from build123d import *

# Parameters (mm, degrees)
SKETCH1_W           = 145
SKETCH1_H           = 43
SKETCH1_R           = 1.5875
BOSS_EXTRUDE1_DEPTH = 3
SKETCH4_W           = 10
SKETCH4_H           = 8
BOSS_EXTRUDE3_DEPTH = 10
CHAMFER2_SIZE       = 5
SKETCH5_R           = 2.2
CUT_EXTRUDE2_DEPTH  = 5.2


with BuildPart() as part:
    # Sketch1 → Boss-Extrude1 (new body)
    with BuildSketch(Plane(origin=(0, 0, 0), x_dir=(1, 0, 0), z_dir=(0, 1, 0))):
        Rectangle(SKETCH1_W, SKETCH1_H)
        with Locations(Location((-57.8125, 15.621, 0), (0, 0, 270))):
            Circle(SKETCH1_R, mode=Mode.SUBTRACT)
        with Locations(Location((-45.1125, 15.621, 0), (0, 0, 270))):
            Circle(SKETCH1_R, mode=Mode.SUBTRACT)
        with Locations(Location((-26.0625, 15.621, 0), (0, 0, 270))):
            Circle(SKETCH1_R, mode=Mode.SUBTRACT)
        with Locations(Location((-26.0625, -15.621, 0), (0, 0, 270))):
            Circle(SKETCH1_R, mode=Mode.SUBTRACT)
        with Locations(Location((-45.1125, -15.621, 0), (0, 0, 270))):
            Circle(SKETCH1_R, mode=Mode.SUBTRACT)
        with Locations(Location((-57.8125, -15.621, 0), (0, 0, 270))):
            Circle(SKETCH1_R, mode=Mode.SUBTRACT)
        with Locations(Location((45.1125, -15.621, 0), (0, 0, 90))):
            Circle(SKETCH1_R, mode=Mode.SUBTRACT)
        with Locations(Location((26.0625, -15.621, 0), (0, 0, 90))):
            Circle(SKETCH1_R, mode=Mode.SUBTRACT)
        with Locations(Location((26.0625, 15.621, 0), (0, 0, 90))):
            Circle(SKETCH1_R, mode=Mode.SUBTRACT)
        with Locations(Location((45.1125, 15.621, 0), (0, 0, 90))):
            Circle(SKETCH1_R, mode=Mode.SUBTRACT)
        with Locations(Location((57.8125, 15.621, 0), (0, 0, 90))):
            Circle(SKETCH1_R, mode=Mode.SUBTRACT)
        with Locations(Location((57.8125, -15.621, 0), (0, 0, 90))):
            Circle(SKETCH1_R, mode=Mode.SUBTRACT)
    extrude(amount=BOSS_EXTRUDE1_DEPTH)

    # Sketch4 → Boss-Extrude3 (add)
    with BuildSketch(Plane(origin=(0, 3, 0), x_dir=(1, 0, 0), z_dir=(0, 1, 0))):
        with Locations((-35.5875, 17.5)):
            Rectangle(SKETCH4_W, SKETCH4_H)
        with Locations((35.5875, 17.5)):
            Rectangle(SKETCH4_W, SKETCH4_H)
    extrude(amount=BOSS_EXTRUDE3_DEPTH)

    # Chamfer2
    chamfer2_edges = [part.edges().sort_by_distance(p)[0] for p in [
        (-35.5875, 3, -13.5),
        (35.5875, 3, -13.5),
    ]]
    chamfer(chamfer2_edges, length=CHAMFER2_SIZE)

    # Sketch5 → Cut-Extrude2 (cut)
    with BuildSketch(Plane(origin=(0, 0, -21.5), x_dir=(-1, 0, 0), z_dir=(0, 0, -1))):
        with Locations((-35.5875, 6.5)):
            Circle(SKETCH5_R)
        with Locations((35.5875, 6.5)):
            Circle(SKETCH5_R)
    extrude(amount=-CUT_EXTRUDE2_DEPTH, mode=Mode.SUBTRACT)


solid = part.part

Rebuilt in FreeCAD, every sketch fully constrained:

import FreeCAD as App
import Part
import Sketcher
from FreeCAD import Vector
Q = App.Units.Quantity


def edges_at(feature, points):
    """Names of the edges that pass closest to the given points."""
    edges = feature.Shape.Edges
    near = lambda p: min(range(len(edges)), key=lambda i: edges[i].distToShape(Part.Vertex(*p))[0])
    return sorted({f"Edge{near(p) + 1}" for p in points})

doc = App.newDocument("Part")
params = doc.addObject("Spreadsheet::Sheet", "Params")
for row, (alias, value) in enumerate([
    ("sketch1_width", "145 mm"),
    ("sketch1_height", "43 mm"),
    ("pad1_length", "3 mm"),
    ("sketch2_width", "10 mm"),
    ("sketch2_height", "8 mm"),
    ("pad2_length", "10 mm"),
    ("chamfer_size", "5 mm"),
    ("sketch3_diameter", "4.4 mm"),
    ("pocket1_length", "5.2 mm"),
], start=1):
    params.set(f"A{row}", alias)
    params.set(f"B{row}", "=" + value)
    params.setAlias(f"B{row}", alias)

body = doc.addObject("PartDesign::Body", "Body")

# Sketch on XZ plane
sketch1 = body.newObject("Sketcher::SketchObject", "Sketch")
sketch1.AttachmentSupport = (doc.getObject("XZ_Plane"), [""])
sketch1.MapMode = "FlatFace"
sketch1.addGeometry([
    Part.LineSegment(Vector(-72.5, -21.5, 0), Vector(-72.5, 21.5, 0)),  # 0
    Part.LineSegment(Vector(-72.5, 21.5, 0), Vector(72.5, 21.5, 0)),  # 1
    Part.LineSegment(Vector(72.5, 21.5, 0), Vector(72.5, -21.5, 0)),  # 2
    Part.LineSegment(Vector(72.5, -21.5, 0), Vector(-72.5, -21.5, 0)),  # 3
    Part.Circle(Vector(-57.8, 15.6, 0), Vector(0, 0, 1), 1.6),  # 4
    Part.Circle(Vector(-45.1, 15.6, 0), Vector(0, 0, 1), 1.6),  # 5
    Part.Circle(Vector(-26.1, 15.6, 0), Vector(0, 0, 1), 1.6),  # 6
    Part.Circle(Vector(26.1, 15.6, 0), Vector(0, 0, 1), 1.6),  # 7
    Part.Circle(Vector(45.1, 15.6, 0), Vector(0, 0, 1), 1.6),  # 8
    Part.Circle(Vector(57.8, 15.6, 0), Vector(0, 0, 1), 1.6),  # 9
    Part.Circle(Vector(-57.8, -15.6, 0), Vector(0, 0, 1), 1.6),  # 10
    Part.Circle(Vector(-45.1, -15.6, 0), Vector(0, 0, 1), 1.6),  # 11
    Part.Circle(Vector(-26.1, -15.6, 0), Vector(0, 0, 1), 1.6),  # 12
    Part.Circle(Vector(26.1, -15.6, 0), Vector(0, 0, 1), 1.6),  # 13
    Part.Circle(Vector(45.1, -15.6, 0), Vector(0, 0, 1), 1.6),  # 14
    Part.Circle(Vector(57.8, -15.6, 0), Vector(0, 0, 1), 1.6),  # 15
], False)
sketch1.addConstraint([
    Sketcher.Constraint("Coincident", 0, 2, 1, 1),
    Sketcher.Constraint("Coincident", 1, 2, 2, 1),
    Sketcher.Constraint("Coincident", 2, 2, 3, 1),
    Sketcher.Constraint("Coincident", 3, 2, 0, 1),
    Sketcher.Constraint("Vertical", 0),
    Sketcher.Constraint("Horizontal", 1),
    Sketcher.Constraint("Vertical", 2),
    Sketcher.Constraint("Horizontal", 3),
    Sketcher.Constraint("Equal", 4, 5),
    Sketcher.Constraint("Equal", 5, 6),
    Sketcher.Constraint("Equal", 6, 7),
    Sketcher.Constraint("Equal", 7, 8),
    Sketcher.Constraint("Equal", 8, 9),
    Sketcher.Constraint("Equal", 9, 10),
    Sketcher.Constraint("Equal", 10, 11),
    Sketcher.Constraint("Equal", 11, 12),
    Sketcher.Constraint("Equal", 12, 13),
    Sketcher.Constraint("Equal", 13, 14),
    Sketcher.Constraint("Equal", 14, 15),
    Sketcher.Constraint("Symmetric", 9, 3, 10, 3, -1, 1),
    Sketcher.Constraint("Symmetric", 8, 3, 11, 3, -1, 1),
    Sketcher.Constraint("Symmetric", 7, 3, 12, 3, -1, 1),
    Sketcher.Constraint("Symmetric", 6, 3, 13, 3, -1, 1),
    Sketcher.Constraint("Symmetric", 5, 3, 14, 3, -1, 1),
    Sketcher.Constraint("Symmetric", 4, 3, 15, 3, -1, 1),
    Sketcher.Constraint("Symmetric", 0, 2, 2, 2, -1, 1),
    Sketcher.Constraint("Symmetric", 6, 3, 7, 3, -2),
    Sketcher.Constraint("Symmetric", 5, 3, 8, 3, -2),
    Sketcher.Constraint("Symmetric", 4, 3, 9, 3, -2),
    Sketcher.Constraint("Horizontal", 4, 3, 5, 3),
    Sketcher.Constraint("Horizontal", 5, 3, 6, 3),
    Sketcher.Constraint("DistanceX", 1, 1, 1, 2, Q("145 mm")),
    Sketcher.Constraint("DistanceY", 0, 1, 0, 2, Q("43 mm")),
    Sketcher.Constraint("Diameter", 4, Q("3.175 mm")),
    Sketcher.Constraint("DistanceX", 4, 3, 5, 3, Q("12.7 mm")),
    Sketcher.Constraint("DistanceX", 5, 3, 6, 3, Q("19.05 mm")),
    Sketcher.Constraint("DistanceY", -1, 1, 4, 3, Q("15.621 mm")),
    Sketcher.Constraint("DistanceX", 6, 3, 7, 3, Q("52.125 mm")),
])
sketch1.setExpression("Constraints[31]", "Params.sketch1_width")
sketch1.setExpression("Constraints[32]", "Params.sketch1_height")
pad1 = body.newObject("PartDesign::Pad", "Pad")
pad1.Profile = sketch1
pad1.setExpression("Length", "Params.pad1_length")
pad1.Reversed = True

# Sketch on XZ plane
sketch2 = body.newObject("Sketcher::SketchObject", "Sketch001")
sketch2.AttachmentSupport = (doc.getObject("XZ_Plane"), [""])
sketch2.MapMode = "FlatFace"
sketch2.AttachmentOffset = App.Placement(Vector(0, 0, -3), App.Rotation())
sketch2.addGeometry([
    Part.LineSegment(Vector(-41, -22, 0), Vector(-41, -14, 0)),  # 0
    Part.LineSegment(Vector(-41, -14, 0), Vector(-31, -14, 0)),  # 1
    Part.LineSegment(Vector(-31, -14, 0), Vector(-31, -22, 0)),  # 2
    Part.LineSegment(Vector(-31, -22, 0), Vector(-41, -22, 0)),  # 3
    Part.LineSegment(Vector(31, -22, 0), Vector(31, -14, 0)),  # 4
    Part.LineSegment(Vector(31, -14, 0), Vector(41, -14, 0)),  # 5
    Part.LineSegment(Vector(41, -14, 0), Vector(41, -22, 0)),  # 6
    Part.LineSegment(Vector(41, -22, 0), Vector(31, -22, 0)),  # 7
], False)
sketch2.addConstraint([
    Sketcher.Constraint("Coincident", 0, 2, 1, 1),
    Sketcher.Constraint("Coincident", 1, 2, 2, 1),
    Sketcher.Constraint("Coincident", 2, 2, 3, 1),
    Sketcher.Constraint("Coincident", 3, 2, 0, 1),
    Sketcher.Constraint("Coincident", 4, 2, 5, 1),
    Sketcher.Constraint("Coincident", 5, 2, 6, 1),
    Sketcher.Constraint("Coincident", 6, 2, 7, 1),
    Sketcher.Constraint("Coincident", 7, 2, 4, 1),
    Sketcher.Constraint("Vertical", 0),
    Sketcher.Constraint("Horizontal", 1),
    Sketcher.Constraint("Vertical", 2),
    Sketcher.Constraint("Horizontal", 3),
    Sketcher.Constraint("Vertical", 4),
    Sketcher.Constraint("Horizontal", 5),
    Sketcher.Constraint("Vertical", 6),
    Sketcher.Constraint("Horizontal", 7),
    Sketcher.Constraint("Symmetric", 1, 2, 4, 2, -2),
    Sketcher.Constraint("Symmetric", 3, 2, 6, 2, -2),
    Sketcher.Constraint("DistanceX", 1, 1, 1, 2, Q("10 mm")),
    Sketcher.Constraint("DistanceY", 0, 1, 0, 2, Q("8 mm")),
    Sketcher.Constraint("DistanceY", 0, 2, -1, 1, Q("13.5 mm")),
    Sketcher.Constraint("DistanceX", 1, 2, 4, 2, Q("61.175 mm")),
])
sketch2.setExpression("Constraints[18]", "Params.sketch2_width")
sketch2.setExpression("Constraints[19]", "Params.sketch2_height")
pad2 = body.newObject("PartDesign::Pad", "Pad001")
pad2.Profile = sketch2
pad2.setExpression("Length", "Params.pad2_length")
pad2.Reversed = True
doc.recompute()

chamfer = body.newObject("PartDesign::Chamfer", "Chamfer")
chamfer.Base = (pad2, edges_at(pad2, [(-35.587, 3, -13.5), (35.587, 3, -13.5)]))
chamfer.setExpression("Size", "Params.chamfer_size")

# Sketch on XY plane
sketch3 = body.newObject("Sketcher::SketchObject", "Sketch002")
sketch3.AttachmentSupport = (doc.getObject("XY_Plane"), [""])
sketch3.MapMode = "FlatFace"
sketch3.AttachmentOffset = App.Placement(Vector(0, 0, -21.5), App.Rotation())
sketch3.addGeometry([
    Part.Circle(Vector(35.6, 6.5, 0), Vector(0, 0, 1), 2.2),
    Part.Circle(Vector(-35.6, 6.5, 0), Vector(0, 0, 1), 2.2),
], False)
sketch3.addConstraint([
    Sketcher.Constraint("Equal", 0, 1),
    Sketcher.Constraint("Symmetric", 0, 3, 1, 3, -2),
    Sketcher.Constraint("Diameter", 0, Q("4.4 mm")),
    Sketcher.Constraint("DistanceY", -1, 1, 0, 3, Q("6.5 mm")),
    Sketcher.Constraint("DistanceX", 1, 3, 0, 3, Q("71.175 mm")),
])
sketch3.setExpression("Constraints[2]", "Params.sketch3_diameter")
pocket1 = body.newObject("PartDesign::Pocket", "Pocket")
pocket1.Profile = sketch3
pocket1.setExpression("Length", "Params.pocket1_length")
pocket1.Reversed = True

doc.recompute()
